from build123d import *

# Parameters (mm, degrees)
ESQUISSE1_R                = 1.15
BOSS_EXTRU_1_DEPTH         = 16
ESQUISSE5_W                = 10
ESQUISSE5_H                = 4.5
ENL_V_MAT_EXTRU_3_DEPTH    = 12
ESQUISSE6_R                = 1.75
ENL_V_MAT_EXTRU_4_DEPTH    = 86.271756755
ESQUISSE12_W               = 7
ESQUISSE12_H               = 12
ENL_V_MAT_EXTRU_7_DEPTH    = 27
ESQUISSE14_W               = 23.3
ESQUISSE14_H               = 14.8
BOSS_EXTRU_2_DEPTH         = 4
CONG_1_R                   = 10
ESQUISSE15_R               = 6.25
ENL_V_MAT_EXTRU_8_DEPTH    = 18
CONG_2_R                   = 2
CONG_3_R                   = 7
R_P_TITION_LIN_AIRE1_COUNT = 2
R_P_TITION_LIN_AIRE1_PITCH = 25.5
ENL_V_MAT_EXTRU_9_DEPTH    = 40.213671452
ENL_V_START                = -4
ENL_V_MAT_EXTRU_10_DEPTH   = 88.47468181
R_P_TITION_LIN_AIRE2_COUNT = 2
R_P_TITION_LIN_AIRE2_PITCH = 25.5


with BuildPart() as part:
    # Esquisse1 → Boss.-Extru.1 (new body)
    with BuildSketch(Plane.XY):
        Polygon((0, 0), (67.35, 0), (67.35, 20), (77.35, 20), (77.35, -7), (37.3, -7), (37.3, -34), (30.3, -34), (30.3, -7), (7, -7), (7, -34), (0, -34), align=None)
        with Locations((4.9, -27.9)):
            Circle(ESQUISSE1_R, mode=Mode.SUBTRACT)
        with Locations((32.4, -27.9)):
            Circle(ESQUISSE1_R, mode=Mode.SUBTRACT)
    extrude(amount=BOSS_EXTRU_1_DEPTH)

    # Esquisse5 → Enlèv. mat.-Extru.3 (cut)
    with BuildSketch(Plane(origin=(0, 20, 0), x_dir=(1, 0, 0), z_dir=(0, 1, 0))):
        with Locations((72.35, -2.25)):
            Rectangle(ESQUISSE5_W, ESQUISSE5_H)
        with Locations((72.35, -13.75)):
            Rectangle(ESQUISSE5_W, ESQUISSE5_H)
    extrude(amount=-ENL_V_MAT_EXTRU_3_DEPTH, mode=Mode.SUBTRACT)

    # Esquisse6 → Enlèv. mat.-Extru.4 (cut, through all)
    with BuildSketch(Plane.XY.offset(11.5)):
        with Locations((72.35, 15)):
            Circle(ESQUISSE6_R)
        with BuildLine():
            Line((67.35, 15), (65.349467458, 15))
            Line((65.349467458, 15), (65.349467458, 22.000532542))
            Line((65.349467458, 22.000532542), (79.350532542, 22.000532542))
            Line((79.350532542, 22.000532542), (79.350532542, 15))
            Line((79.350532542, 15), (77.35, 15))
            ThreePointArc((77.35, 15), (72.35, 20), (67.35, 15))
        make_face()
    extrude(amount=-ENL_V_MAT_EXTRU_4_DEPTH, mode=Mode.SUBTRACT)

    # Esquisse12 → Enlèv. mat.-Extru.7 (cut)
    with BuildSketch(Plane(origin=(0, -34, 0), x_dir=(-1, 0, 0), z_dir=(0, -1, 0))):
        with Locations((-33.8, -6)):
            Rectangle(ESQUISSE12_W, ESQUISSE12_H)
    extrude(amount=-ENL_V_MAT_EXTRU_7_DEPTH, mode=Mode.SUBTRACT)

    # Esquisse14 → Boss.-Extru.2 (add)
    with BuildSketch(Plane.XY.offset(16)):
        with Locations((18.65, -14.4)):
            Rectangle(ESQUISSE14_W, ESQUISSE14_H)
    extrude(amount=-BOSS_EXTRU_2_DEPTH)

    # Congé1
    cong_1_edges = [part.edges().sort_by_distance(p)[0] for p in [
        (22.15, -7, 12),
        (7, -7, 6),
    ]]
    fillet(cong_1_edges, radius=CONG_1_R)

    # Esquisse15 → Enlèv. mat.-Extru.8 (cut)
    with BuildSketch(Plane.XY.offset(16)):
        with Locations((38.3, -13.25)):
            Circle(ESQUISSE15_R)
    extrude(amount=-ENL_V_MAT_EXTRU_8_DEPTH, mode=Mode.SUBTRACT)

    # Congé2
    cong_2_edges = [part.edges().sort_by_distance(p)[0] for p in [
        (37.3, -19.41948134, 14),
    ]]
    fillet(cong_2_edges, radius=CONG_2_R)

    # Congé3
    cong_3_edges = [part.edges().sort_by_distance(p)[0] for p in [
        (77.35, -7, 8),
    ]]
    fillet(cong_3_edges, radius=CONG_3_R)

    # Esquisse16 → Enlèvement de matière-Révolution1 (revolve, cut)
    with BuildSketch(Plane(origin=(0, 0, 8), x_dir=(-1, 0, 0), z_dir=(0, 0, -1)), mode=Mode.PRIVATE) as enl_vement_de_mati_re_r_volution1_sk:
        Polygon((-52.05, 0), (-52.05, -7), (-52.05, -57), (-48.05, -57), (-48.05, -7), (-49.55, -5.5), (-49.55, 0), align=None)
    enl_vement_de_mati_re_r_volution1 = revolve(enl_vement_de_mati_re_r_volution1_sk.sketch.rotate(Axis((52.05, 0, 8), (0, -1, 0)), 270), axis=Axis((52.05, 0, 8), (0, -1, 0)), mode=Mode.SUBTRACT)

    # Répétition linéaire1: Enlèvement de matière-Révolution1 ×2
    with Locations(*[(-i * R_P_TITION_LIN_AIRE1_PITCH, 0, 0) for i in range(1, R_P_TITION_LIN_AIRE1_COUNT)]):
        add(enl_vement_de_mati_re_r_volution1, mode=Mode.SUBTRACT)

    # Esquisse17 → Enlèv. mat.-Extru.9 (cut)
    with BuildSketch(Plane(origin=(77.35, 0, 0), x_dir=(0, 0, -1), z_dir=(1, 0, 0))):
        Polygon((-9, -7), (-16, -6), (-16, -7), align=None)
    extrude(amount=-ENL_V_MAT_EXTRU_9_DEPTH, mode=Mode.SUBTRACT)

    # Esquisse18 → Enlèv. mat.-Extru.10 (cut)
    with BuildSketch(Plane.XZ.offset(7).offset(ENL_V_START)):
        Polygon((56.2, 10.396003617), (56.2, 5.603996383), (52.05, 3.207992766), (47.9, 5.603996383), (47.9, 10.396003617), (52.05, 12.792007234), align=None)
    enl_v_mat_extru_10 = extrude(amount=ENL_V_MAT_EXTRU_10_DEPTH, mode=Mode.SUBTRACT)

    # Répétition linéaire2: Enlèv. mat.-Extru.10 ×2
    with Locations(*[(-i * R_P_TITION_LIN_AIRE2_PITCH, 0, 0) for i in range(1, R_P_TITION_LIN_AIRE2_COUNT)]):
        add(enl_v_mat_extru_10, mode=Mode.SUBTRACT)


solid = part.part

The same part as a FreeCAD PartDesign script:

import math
import FreeCAD as App
import Part
import Sketcher

V = App.Vector
Q = App.Units.Quantity


def edges_at(feature, points):
    """Names of the edges that pass closest to the given points."""
    edges = feature.Shape.Edges
    near = lambda p: min(range(len(edges)), key=lambda i: edges[i].distToShape(Part.Vertex(*p))[0])
    return sorted({f"Edge{near(p) + 1}" for p in points})

doc = App.newDocument("Part")
body = doc.addObject("PartDesign::Body", "Body")

# Sketch on XY plane
sketch1 = body.newObject("Sketcher::SketchObject", "Sketch")
sketch1.AttachmentSupport = (doc.getObject("XY_Plane"), [""])
sketch1.MapMode = "FlatFace"
sketch1.addGeometry([
    Part.LineSegment(V(67.3, 0, 0), V(0, 0, 0)),  # 0
    Part.LineSegment(V(0, 0, 0), V(0, -34, 0)),  # 1
    Part.LineSegment(V(0, -34, 0), V(7, -34, 0)),  # 2
    Part.LineSegment(V(7, -34, 0), V(7, -7, 0)),  # 3
    Part.LineSegment(V(7, -7, 0), V(30.3, -7, 0)),  # 4
    Part.LineSegment(V(30.3, -7, 0), V(30.3, -34, 0)),  # 5
    Part.LineSegment(V(30.3, -34, 0), V(37.3, -34, 0)),  # 6
    Part.LineSegment(V(37.3, -34, 0), V(37.3, -7, 0)),  # 7
    Part.LineSegment(V(37.3, -7, 0), V(77.3, -7, 0)),  # 8
    Part.LineSegment(V(77.3, -7, 0), V(77.3, 20, 0)),  # 9
    Part.LineSegment(V(77.3, 20, 0), V(67.3, 20, 0)),  # 10
    Part.LineSegment(V(67.3, 20, 0), V(67.3, 0, 0)),  # 11
    Part.Circle(V(32.4, -27.9, 0), V(0, 0, 1), 1.1),  # 12
    Part.Circle(V(4.9, -27.9, 0), V(0, 0, 1), 1.1),  # 13
], False)
sketch1.addConstraint([
    Sketcher.Constraint("Coincident", 0, 2, 1, 1),
    Sketcher.Constraint("Coincident", 1, 2, 2, 1),
    Sketcher.Constraint("Coincident", 2, 2, 3, 1),
    Sketcher.Constraint("Coincident", 3, 2, 4, 1),
    Sketcher.Constraint("Coincident", 4, 2, 5, 1),
    Sketcher.Constraint("Coincident", 5, 2, 6, 1),
    Sketcher.Constraint("Coincident", 6, 2, 7, 1),
    Sketcher.Constraint("Coincident", 7, 2, 8, 1),
    Sketcher.Constraint("Coincident", 8, 2, 9, 1),
    Sketcher.Constraint("Coincident", 9, 2, 10, 1),
    Sketcher.Constraint("Coincident", 10, 2, 11, 1),
    Sketcher.Constraint("Coincident", 11, 2, 0, 1),
    Sketcher.Constraint("Horizontal", 0),
    Sketcher.Constraint("Vertical", 1),
    Sketcher.Constraint("Horizontal", 2),
    Sketcher.Constraint("Vertical", 3),
    Sketcher.Constraint("Horizontal", 4),
    Sketcher.Constraint("Vertical", 5),
    Sketcher.Constraint("Horizontal", 6),
    Sketcher.Constraint("Vertical", 7),
    Sketcher.Constraint("Horizontal", 8),
    Sketcher.Constraint("Vertical", 9),
    Sketcher.Constraint("Horizontal", 10),
    Sketcher.Constraint("Vertical", 11),
    Sketcher.Constraint("Coincident", 0, 2, -1, 1),
    Sketcher.Constraint("Equal", 12, 13),
    Sketcher.Constraint("Horizontal", 12, 3, 13, 3),
    Sketcher.Constraint("Horizontal", 2, 2, 5, 2),
    Sketcher.Constraint("Horizontal", 4, 2, 7, 2),
    Sketcher.Constraint("Equal", 2, 6),
    Sketcher.Constraint("Equal", 7, 9),
    Sketcher.Constraint("Diameter", 12, Q("2.3 mm")),
    Sketcher.Constraint("DistanceX", 2, 1, 2, 2, Q("7 mm")),
    Sketcher.Constraint("DistanceX", 10, 2, 10, 1, Q("10 mm")),
    Sketcher.Constraint("DistanceY", 1, 2, 1, 1, Q("34 mm")),
    Sketcher.Constraint("DistanceY", 3, 1, 3, 2, Q("27 mm")),
    Sketcher.Constraint("DistanceX", 4, 1, 4, 2, Q("23.3 mm")),
    Sketcher.Constraint("DistanceX", 0, 2, 0, 1, Q("67.35 mm")),
    Sketcher.Constraint("DistanceX", -1, 1, 12, 3, Q("32.4 mm")),
    Sketcher.Constraint("DistanceY", 12, 3, -1, 1, Q("27.9 mm")),
    Sketcher.Constraint("DistanceX", -1, 1, 13, 3, Q("4.9 mm")),
])
pad1 = body.newObject("PartDesign::Pad", "Pad")
pad1.Profile = sketch1
pad1.Length = 16

# Sketch on XZ plane
sketch2 = body.newObject("Sketcher::SketchObject", "Sketch001")
sketch2.AttachmentSupport = (doc.getObject("XZ_Plane"), [""])
sketch2.MapMode = "FlatFace"
sketch2.AttachmentOffset = App.Placement(V(0, 0, -20), App.Rotation())
sketch2.addGeometry([
    Part.LineSegment(V(67.3, 0, 0), V(67.3, 4.5, 0)),  # 0
    Part.LineSegment(V(67.3, 4.5, 0), V(77.3, 4.5, 0)),  # 1
    Part.LineSegment(V(77.3, 4.5, 0), V(77.3, 0, 0)),  # 2
    Part.LineSegment(V(77.3, 0, 0), V(67.3, 0, 0)),  # 3
    Part.LineSegment(V(67.3, 11.5, 0), V(67.3, 16, 0)),  # 4
    Part.LineSegment(V(67.3, 16, 0), V(77.3, 16, 0)),  # 5
    Part.LineSegment(V(77.3, 16, 0), V(77.3, 11.5, 0)),  # 6
    Part.LineSegment(V(77.3, 11.5, 0), V(67.3, 11.5, 0)),  # 7
], False)
sketch2.addConstraint([
    Sketcher.Constraint("Coincident", 0, 2, 1, 1),
    Sketcher.Constraint("Coincident", 1, 2, 2, 1),
    Sketcher.Constraint("Coincident", 2, 2, 3, 1),
    Sketcher.Constraint("Coincident", 3, 2, 0, 1),
    Sketcher.Constraint("Coincident", 4, 2, 5, 1),
    Sketcher.Constraint("Coincident", 5, 2, 6, 1),
    Sketcher.Constraint("Coincident", 6, 2, 7, 1),
    Sketcher.Constraint("Coincident", 7, 2, 4, 1),
    Sketcher.Constraint("Vertical", 0),
    Sketcher.Constraint("Horizontal", 1),
    Sketcher.Constraint("Vertical", 2),
    Sketcher.Constraint("Horizontal", 3),
    Sketcher.Constraint("Vertical", 4),
    Sketcher.Constraint("Horizontal", 5),
    Sketcher.Constraint("Vertical", 6),
    Sketcher.Constraint("Horizontal", 7),
    Sketcher.Constraint("PointOnObject", 2, 2, -1),
    Sketcher.Constraint("Vertical", 3, 2, 4, 2),
    Sketcher.Constraint("Vertical", 2, 2, 5, 2),
    Sketcher.Constraint("Equal", 2, 4),
    Sketcher.Constraint("DistanceX", 1, 1, 1, 2, Q("10 mm")),
    Sketcher.Constraint("DistanceY", 0, 1, 0, 2, Q("4.5 mm")),
    Sketcher.Constraint("DistanceY", -1, 1, 4, 2, Q("16 mm")),
    Sketcher.Constraint("DistanceX", -1, 1, 0, 2, Q("67.35 mm")),
])
pocket1 = body.newObject("PartDesign::Pocket", "Pocket")
pocket1.Profile = sketch2
pocket1.Length = 12
pocket1.Reversed = True

# Sketch on XY plane
sketch3 = body.newObject("Sketcher::SketchObject", "Sketch002")
sketch3.AttachmentSupport = (doc.getObject("XY_Plane"), [""])
sketch3.MapMode = "FlatFace"
sketch3.AttachmentOffset = App.Placement(V(0, 0, 11.5), App.Rotation())
sketch3.addGeometry([
    Part.Circle(V(72.3, 15, 0), V(0, 0, 1), 1.8),  # 0
    Part.LineSegment(V(65.3, 15, 0), V(67.3, 15, 0)),  # 1
    Part.ArcOfCircle(Part.Circle(V(72.3, 15, 0), V(0, 0, 1), 5), math.radians(0), math.radians(180)),  # 2
    Part.LineSegment(V(77.3, 15, 0), V(79.4, 15, 0)),  # 3
    Part.LineSegment(V(79.4, 15, 0), V(79.4, 22, 0)),  # 4
    Part.LineSegment(V(79.4, 22, 0), V(65.3, 22, 0)),  # 5
    Part.LineSegment(V(65.3, 22, 0), V(65.3, 15, 0)),  # 6
], False)
sketch3.addConstraint([
    Sketcher.Constraint("Coincident", 1, 2, 2, 2),
    Sketcher.Constraint("Coincident", 2, 1, 3, 1),
    Sketcher.Constraint("Coincident", 3, 2, 4, 1),
    Sketcher.Constraint("Coincident", 4, 2, 5, 1),
    Sketcher.Constraint("Coincident", 5, 2, 6, 1),
    Sketcher.Constraint("Coincident", 6, 2, 1, 1),
    Sketcher.Constraint("Horizontal", 1),
    Sketcher.Constraint("Horizontal", 3),
    Sketcher.Constraint("Vertical", 4),
    Sketcher.Constraint("Horizontal", 5),
    Sketcher.Constraint("Vertical", 6),
    Sketcher.Constraint("Coincident", 2, 3, 0, 3),
    Sketcher.Constraint("Horizontal", 2, 3, 1, 2),
    Sketcher.Constraint("Horizontal", 1, 2, 2, 1),
    Sketcher.Constraint("Equal", 1, 3),
    Sketcher.Constraint("Radius", 2, Q("5 mm")),
    Sketcher.Constraint("Diameter", 0, Q("3.5 mm")),
    Sketcher.Constraint("DistanceY", -1, 1, 0, 3, Q("15 mm")),
    Sketcher.Constraint("DistanceX", -1, 1, 0, 3, Q("72.35 mm")),
    Sketcher.Constraint("DistanceX", 1, 1, 1, 2, Q("2.000533 mm")),
    Sketcher.Constraint("DistanceY", 4, 1, 4, 2, Q("7.000533 mm")),
])
pocket2 = body.newObject("PartDesign::Pocket", "Pocket001")
pocket2.Profile = sketch3
pocket2.Type = "ThroughAll"

# Sketch on XZ plane
sketch4 = body.newObject("Sketcher::SketchObject", "Sketch003")
sketch4.AttachmentSupport = (doc.getObject("XZ_Plane"), [""])
sketch4.MapMode = "FlatFace"
sketch4.AttachmentOffset = App.Placement(V(0, 0, 34), App.Rotation())
sketch4.addGeometry([
    Part.LineSegment(V(37, 0, 0), V(37, 12, 0)),
    Part.LineSegment(V(37, 12, 0), V(30, 12, 0)),
    Part.LineSegment(V(30, 12, 0), V(30, 0, 0)),
    Part.LineSegment(V(30, 0, 0), V(37, 0, 0)),
], False)
sketch4.addConstraint([
    Sketcher.Constraint("Coincident", 0, 2, 1, 1),
    Sketcher.Constraint("Coincident", 1, 2, 2, 1),
    Sketcher.Constraint("Coincident", 2, 2, 3, 1),
    Sketcher.Constraint("Coincident", 3, 2, 0, 1),
    Sketcher.Constraint("Vertical", 0),
    Sketcher.Constraint("Horizontal", 1),
    Sketcher.Constraint("Vertical", 2),
    Sketcher.Constraint("Horizontal", 3),
    Sketcher.Constraint("PointOnObject", 2, 2, -1),
    Sketcher.Constraint("DistanceX", 1, 2, 1, 1, Q("7 mm")),
    Sketcher.Constraint("DistanceY", 0, 1, 0, 2, Q("12 mm")),
    Sketcher.Constraint("DistanceX", -1, 1, 0, 2, Q("37.3 mm")),
])
pocket3 = body.newObject("PartDesign::Pocket", "Pocket002")
pocket3.Profile = sketch4
pocket3.Length = 27

# Sketch on XY plane
sketch5 = body.newObject("Sketcher::SketchObject", "Sketch004")
sketch5.AttachmentSupport = (doc.getObject("XY_Plane"), [""])
sketch5.MapMode = "FlatFace"
sketch5.AttachmentOffset = App.Placement(V(0, 0, 16), App.Rotation())
sketch5.addGeometry([
    Part.LineSegment(V(7, -7, 0), V(7, -22, 0)),
    Part.LineSegment(V(7, -22, 0), V(30, -22, 0)),
    Part.LineSegment(V(30, -22, 0), V(30, -7, 0)),
    Part.LineSegment(V(30, -7, 0), V(7, -7, 0)),
], False)
sketch5.addConstraint([
    Sketcher.Constraint("Coincident", 0, 2, 1, 1),
    Sketcher.Constraint("Coincident", 1, 2, 2, 1),
    Sketcher.Constraint("Coincident", 2, 2, 3, 1),
    Sketcher.Constraint("Coincident", 3, 2, 0, 1),
    Sketcher.Constraint("Vertical", 0),
    Sketcher.Constraint("Horizontal", 1),
    Sketcher.Constraint("Vertical", 2),
    Sketcher.Constraint("Horizontal", 3),
    Sketcher.Constraint("DistanceX", 1, 1, 1, 2, Q("23.3 mm")),
    Sketcher.Constraint("DistanceY", 0, 2, 0, 1, Q("14.8 mm")),
    Sketcher.Constraint("DistanceX", -1, 1, 0, 2, Q("7 mm")),
    Sketcher.Constraint("DistanceY", 2, 2, -1, 1, Q("7 mm")),
])
pad2 = body.newObject("PartDesign::Pad", "Pad001")
pad2.Profile = sketch5
pad2.Length = 4
pad2.Reversed = True
doc.recompute()

fillet = body.newObject("PartDesign::Fillet", "Fillet")
fillet.Base = (pad2, edges_at(pad2, [(22.15, -7, 12), (7, -7, 6)]))
fillet.Radius = 10

# Sketch on XY plane
sketch6 = body.newObject("Sketcher::SketchObject", "Sketch005")
sketch6.AttachmentSupport = (doc.getObject("XY_Plane"), [""])
sketch6.MapMode = "FlatFace"
sketch6.AttachmentOffset = App.Placement(V(0, 0, 16), App.Rotation())
sketch6.addGeometry(Part.Circle(V(38, -13, 0), V(0, 0, 1), 6), False)
sketch6.addConstraint([
    Sketcher.Constraint("Diameter", 0, Q("12.5 mm")),
    Sketcher.Constraint("DistanceX", -1, 1, 0, 3, Q("38.3 mm")),
    Sketcher.Constraint("DistanceY", 0, 3, -1, 1, Q("13.25 mm")),
])
pocket4 = body.newObject("PartDesign::Pocket", "Pocket003")
pocket4.Profile = sketch6
pocket4.Length = 18
doc.recompute()

fillet2 = body.newObject("PartDesign::Fillet", "Fillet001")
fillet2.Base = (pocket4, edges_at(pocket4, [(37.3, -19.419, 14)]))
fillet2.Radius = 2
doc.recompute()

fillet3 = body.newObject("PartDesign::Fillet", "Fillet002")
fillet3.Base = (fillet2, edges_at(fillet2, [(77.35, -7, 8)]))
fillet3.Radius = 7

# Sketch on XY plane
sketch7 = body.newObject("Sketcher::SketchObject", "Sketch006")
sketch7.AttachmentSupport = (doc.getObject("XY_Plane"), [""])
sketch7.MapMode = "FlatFace"
sketch7.AttachmentOffset = App.Placement(V(0, 0, 8), App.Rotation())
sketch7.addGeometry([
    Part.LineSegment(V(52, 0, 0), V(52, -57, 0)),  # 0
    Part.LineSegment(V(52, -57, 0), V(48, -57, 0)),  # 1
    Part.LineSegment(V(48, -57, 0), V(48, -7, 0)),  # 2
    Part.LineSegment(V(48, -7, 0), V(49.5, -5.5, 0)),  # 3
    Part.LineSegment(V(49.5, -5.5, 0), V(49.5, 0, 0)),  # 4
    Part.LineSegment(V(49.5, 0, 0), V(52, 0, 0)),  # 5
], False)
sketch7.addGeometry(Part.LineSegment(V(52, 0, 0), V(52, -57, 0)), True)  # axis
sketch7.addConstraint([
    Sketcher.Constraint("Coincident", 0, 2, 1, 1),
    Sketcher.Constraint("Coincident", 1, 2, 2, 1),
    Sketcher.Constraint("Coincident", 2, 2, 3, 1),
    Sketcher.Constraint("Coincident", 3, 2, 4, 1),
    Sketcher.Constraint("Coincident", 4, 2, 5, 1),
    Sketcher.Constraint("Coincident", 5, 2, 0, 1),
    Sketcher.Constraint("Vertical", 0),
    Sketcher.Constraint("Horizontal", 1),
    Sketcher.Constraint("Vertical", 2),
    Sketcher.Constraint("Vertical", 4),
    Sketcher.Constraint("Horizontal", 5),
    Sketcher.Constraint("Vertical", 6),
    Sketcher.Constraint("Coincident", 6, 1, 5, 2),
    Sketcher.Constraint("PointOnObject", 4, 2, -1),
    Sketcher.Constraint("Horizontal", 1, 2, 6, 2),
    Sketcher.Constraint("DistanceX", 1, 2, 1, 1, Q("4 mm")),
    Sketcher.Constraint("DistanceY", 0, 2, 0, 1, Q("57 mm")),
    Sketcher.Constraint("DistanceY", 2, 1, 2, 2, Q("50 mm")),
    Sketcher.Constraint("Angle", 3, Q("45 deg")),
    Sketcher.Constraint("DistanceX", 5, 1, 5, 2, Q("2.5 mm")),
    Sketcher.Constraint("DistanceX", -1, 1, 0, 2, Q("52.05 mm")),
])
groove = body.newObject("PartDesign::Groove", "Groove")
groove.Profile = sketch7
groove.ReferenceAxis = (sketch7, ["Axis0"])
groove.Angle = 360
doc.recompute()

linearpattern = body.newObject("PartDesign::LinearPattern", "LinearPattern")
linearpattern.Originals = [groove]
linearpattern.Direction = (doc.getObject("X_Axis"), [""])
linearpattern.Mode = "offset"
linearpattern.Offset = 25.5
linearpattern.Occurrences = 2
linearpattern.Reversed = True
body.Tip = linearpattern

# Sketch on YZ plane
sketch8 = body.newObject("Sketcher::SketchObject", "Sketch007")
sketch8.AttachmentSupport = (doc.getObject("YZ_Plane"), [""])
sketch8.MapMode = "FlatFace"
sketch8.AttachmentOffset = App.Placement(V(0, 0, 77.35), App.Rotation())
sketch8.addGeometry([
    Part.LineSegment(V(-7, 9, 0), V(-6, 16, 0)),
    Part.LineSegment(V(-6, 16, 0), V(-7, 16, 0)),
    Part.LineSegment(V(-7, 16, 0), V(-7, 9, 0)),
], False)
sketch8.addConstraint([
    Sketcher.Constraint("Coincident", 0, 2, 1, 1),
    Sketcher.Constraint("Coincident", 1, 2, 2, 1),
    Sketcher.Constraint("Coincident", 2, 2, 0, 1),
    Sketcher.Constraint("Horizontal", 1),
    Sketcher.Constraint("Vertical", 2),
    Sketcher.Constraint("DistanceX", 1, 2, 1, 1, Q("1 mm")),
    Sketcher.Constraint("DistanceY", 2, 2, 2, 1, Q("7 mm")),
    Sketcher.Constraint("DistanceX", 0, 2, -1, 1, Q("6 mm")),
    Sketcher.Constraint("DistanceY", -1, 1, 0, 2, Q("16 mm")),
])
pocket5 = body.newObject("PartDesign::Pocket", "Pocket004")
pocket5.Profile = sketch8
pocket5.Length = 40.213671

# Sketch on XZ plane
sketch9 = body.newObject("Sketcher::SketchObject", "Sketch008")
sketch9.AttachmentSupport = (doc.getObject("XZ_Plane"), [""])
sketch9.MapMode = "FlatFace"
sketch9.AttachmentOffset = App.Placement(V(0, 0, 3), App.Rotation())
sketch9.addGeometry([
    Part.LineSegment(V(56.2, 5.6, 0), V(56.2, 10.4, 0)),  # 0
    Part.LineSegment(V(56.2, 10.4, 0), V(52, 12.8, 0)),  # 1
    Part.LineSegment(V(52, 12.8, 0), V(47.9, 10.4, 0)),  # 2
    Part.LineSegment(V(47.9, 10.4, 0), V(47.9, 5.6, 0)),  # 3
    Part.LineSegment(V(47.9, 5.6, 0), V(52, 3.2, 0)),  # 4
    Part.LineSegment(V(52, 3.2, 0), V(56.2, 5.6, 0)),  # 5
], False)
sketch9.addConstraint([
    Sketcher.Constraint("Coincident", 0, 2, 1, 1),
    Sketcher.Constraint("Coincident", 1, 2, 2, 1),
    Sketcher.Constraint("Coincident", 2, 2, 3, 1),
    Sketcher.Constraint("Coincident", 3, 2, 4, 1),
    Sketcher.Constraint("Coincident", 4, 2, 5, 1),
    Sketcher.Constraint("Coincident", 5, 2, 0, 1),
    Sketcher.Constraint("Vertical", 0),
    Sketcher.Constraint("Vertical", 3),
    Sketcher.Constraint("Parallel", 1, 4),
    Sketcher.Constraint("Parallel", 2, 5),
    Sketcher.Constraint("Horizontal", 0, 2, 2, 2),
    Sketcher.Constraint("Horizontal", 3, 2, 5, 2),
    Sketcher.Constraint("Vertical", 1, 2, 4, 2),
    Sketcher.Constraint("Angle", 1, Q("150 deg")),
    Sketcher.Constraint("DistanceX", -1, 1, 0, 2, Q("56.2 mm")),
    Sketcher.Constraint("DistanceX", -1, 1, 2, 2, Q("47.9 mm")),
    Sketcher.Constraint("DistanceY", 0, 1, 0, 2, Q("4.792007 mm")),
    Sketcher.Constraint("DistanceY", -1, 1, 0, 2, Q("10.396004 mm")),
])
pocket6 = body.newObject("PartDesign::Pocket", "Pocket005")
pocket6.Profile = sketch9
pocket6.Length = 88.474682
pocket6.Reversed = True
doc.recompute()

linearpattern2 = body.newObject("PartDesign::LinearPattern", "LinearPattern001")
linearpattern2.Originals = [pocket6]
linearpattern2.Direction = (doc.getObject("X_Axis"), [""])
linearpattern2.Mode = "offset"
linearpattern2.Offset = 25.5
linearpattern2.Occurrences = 2
linearpattern2.Reversed = True
body.Tip = linearpattern2

doc.recompute()
